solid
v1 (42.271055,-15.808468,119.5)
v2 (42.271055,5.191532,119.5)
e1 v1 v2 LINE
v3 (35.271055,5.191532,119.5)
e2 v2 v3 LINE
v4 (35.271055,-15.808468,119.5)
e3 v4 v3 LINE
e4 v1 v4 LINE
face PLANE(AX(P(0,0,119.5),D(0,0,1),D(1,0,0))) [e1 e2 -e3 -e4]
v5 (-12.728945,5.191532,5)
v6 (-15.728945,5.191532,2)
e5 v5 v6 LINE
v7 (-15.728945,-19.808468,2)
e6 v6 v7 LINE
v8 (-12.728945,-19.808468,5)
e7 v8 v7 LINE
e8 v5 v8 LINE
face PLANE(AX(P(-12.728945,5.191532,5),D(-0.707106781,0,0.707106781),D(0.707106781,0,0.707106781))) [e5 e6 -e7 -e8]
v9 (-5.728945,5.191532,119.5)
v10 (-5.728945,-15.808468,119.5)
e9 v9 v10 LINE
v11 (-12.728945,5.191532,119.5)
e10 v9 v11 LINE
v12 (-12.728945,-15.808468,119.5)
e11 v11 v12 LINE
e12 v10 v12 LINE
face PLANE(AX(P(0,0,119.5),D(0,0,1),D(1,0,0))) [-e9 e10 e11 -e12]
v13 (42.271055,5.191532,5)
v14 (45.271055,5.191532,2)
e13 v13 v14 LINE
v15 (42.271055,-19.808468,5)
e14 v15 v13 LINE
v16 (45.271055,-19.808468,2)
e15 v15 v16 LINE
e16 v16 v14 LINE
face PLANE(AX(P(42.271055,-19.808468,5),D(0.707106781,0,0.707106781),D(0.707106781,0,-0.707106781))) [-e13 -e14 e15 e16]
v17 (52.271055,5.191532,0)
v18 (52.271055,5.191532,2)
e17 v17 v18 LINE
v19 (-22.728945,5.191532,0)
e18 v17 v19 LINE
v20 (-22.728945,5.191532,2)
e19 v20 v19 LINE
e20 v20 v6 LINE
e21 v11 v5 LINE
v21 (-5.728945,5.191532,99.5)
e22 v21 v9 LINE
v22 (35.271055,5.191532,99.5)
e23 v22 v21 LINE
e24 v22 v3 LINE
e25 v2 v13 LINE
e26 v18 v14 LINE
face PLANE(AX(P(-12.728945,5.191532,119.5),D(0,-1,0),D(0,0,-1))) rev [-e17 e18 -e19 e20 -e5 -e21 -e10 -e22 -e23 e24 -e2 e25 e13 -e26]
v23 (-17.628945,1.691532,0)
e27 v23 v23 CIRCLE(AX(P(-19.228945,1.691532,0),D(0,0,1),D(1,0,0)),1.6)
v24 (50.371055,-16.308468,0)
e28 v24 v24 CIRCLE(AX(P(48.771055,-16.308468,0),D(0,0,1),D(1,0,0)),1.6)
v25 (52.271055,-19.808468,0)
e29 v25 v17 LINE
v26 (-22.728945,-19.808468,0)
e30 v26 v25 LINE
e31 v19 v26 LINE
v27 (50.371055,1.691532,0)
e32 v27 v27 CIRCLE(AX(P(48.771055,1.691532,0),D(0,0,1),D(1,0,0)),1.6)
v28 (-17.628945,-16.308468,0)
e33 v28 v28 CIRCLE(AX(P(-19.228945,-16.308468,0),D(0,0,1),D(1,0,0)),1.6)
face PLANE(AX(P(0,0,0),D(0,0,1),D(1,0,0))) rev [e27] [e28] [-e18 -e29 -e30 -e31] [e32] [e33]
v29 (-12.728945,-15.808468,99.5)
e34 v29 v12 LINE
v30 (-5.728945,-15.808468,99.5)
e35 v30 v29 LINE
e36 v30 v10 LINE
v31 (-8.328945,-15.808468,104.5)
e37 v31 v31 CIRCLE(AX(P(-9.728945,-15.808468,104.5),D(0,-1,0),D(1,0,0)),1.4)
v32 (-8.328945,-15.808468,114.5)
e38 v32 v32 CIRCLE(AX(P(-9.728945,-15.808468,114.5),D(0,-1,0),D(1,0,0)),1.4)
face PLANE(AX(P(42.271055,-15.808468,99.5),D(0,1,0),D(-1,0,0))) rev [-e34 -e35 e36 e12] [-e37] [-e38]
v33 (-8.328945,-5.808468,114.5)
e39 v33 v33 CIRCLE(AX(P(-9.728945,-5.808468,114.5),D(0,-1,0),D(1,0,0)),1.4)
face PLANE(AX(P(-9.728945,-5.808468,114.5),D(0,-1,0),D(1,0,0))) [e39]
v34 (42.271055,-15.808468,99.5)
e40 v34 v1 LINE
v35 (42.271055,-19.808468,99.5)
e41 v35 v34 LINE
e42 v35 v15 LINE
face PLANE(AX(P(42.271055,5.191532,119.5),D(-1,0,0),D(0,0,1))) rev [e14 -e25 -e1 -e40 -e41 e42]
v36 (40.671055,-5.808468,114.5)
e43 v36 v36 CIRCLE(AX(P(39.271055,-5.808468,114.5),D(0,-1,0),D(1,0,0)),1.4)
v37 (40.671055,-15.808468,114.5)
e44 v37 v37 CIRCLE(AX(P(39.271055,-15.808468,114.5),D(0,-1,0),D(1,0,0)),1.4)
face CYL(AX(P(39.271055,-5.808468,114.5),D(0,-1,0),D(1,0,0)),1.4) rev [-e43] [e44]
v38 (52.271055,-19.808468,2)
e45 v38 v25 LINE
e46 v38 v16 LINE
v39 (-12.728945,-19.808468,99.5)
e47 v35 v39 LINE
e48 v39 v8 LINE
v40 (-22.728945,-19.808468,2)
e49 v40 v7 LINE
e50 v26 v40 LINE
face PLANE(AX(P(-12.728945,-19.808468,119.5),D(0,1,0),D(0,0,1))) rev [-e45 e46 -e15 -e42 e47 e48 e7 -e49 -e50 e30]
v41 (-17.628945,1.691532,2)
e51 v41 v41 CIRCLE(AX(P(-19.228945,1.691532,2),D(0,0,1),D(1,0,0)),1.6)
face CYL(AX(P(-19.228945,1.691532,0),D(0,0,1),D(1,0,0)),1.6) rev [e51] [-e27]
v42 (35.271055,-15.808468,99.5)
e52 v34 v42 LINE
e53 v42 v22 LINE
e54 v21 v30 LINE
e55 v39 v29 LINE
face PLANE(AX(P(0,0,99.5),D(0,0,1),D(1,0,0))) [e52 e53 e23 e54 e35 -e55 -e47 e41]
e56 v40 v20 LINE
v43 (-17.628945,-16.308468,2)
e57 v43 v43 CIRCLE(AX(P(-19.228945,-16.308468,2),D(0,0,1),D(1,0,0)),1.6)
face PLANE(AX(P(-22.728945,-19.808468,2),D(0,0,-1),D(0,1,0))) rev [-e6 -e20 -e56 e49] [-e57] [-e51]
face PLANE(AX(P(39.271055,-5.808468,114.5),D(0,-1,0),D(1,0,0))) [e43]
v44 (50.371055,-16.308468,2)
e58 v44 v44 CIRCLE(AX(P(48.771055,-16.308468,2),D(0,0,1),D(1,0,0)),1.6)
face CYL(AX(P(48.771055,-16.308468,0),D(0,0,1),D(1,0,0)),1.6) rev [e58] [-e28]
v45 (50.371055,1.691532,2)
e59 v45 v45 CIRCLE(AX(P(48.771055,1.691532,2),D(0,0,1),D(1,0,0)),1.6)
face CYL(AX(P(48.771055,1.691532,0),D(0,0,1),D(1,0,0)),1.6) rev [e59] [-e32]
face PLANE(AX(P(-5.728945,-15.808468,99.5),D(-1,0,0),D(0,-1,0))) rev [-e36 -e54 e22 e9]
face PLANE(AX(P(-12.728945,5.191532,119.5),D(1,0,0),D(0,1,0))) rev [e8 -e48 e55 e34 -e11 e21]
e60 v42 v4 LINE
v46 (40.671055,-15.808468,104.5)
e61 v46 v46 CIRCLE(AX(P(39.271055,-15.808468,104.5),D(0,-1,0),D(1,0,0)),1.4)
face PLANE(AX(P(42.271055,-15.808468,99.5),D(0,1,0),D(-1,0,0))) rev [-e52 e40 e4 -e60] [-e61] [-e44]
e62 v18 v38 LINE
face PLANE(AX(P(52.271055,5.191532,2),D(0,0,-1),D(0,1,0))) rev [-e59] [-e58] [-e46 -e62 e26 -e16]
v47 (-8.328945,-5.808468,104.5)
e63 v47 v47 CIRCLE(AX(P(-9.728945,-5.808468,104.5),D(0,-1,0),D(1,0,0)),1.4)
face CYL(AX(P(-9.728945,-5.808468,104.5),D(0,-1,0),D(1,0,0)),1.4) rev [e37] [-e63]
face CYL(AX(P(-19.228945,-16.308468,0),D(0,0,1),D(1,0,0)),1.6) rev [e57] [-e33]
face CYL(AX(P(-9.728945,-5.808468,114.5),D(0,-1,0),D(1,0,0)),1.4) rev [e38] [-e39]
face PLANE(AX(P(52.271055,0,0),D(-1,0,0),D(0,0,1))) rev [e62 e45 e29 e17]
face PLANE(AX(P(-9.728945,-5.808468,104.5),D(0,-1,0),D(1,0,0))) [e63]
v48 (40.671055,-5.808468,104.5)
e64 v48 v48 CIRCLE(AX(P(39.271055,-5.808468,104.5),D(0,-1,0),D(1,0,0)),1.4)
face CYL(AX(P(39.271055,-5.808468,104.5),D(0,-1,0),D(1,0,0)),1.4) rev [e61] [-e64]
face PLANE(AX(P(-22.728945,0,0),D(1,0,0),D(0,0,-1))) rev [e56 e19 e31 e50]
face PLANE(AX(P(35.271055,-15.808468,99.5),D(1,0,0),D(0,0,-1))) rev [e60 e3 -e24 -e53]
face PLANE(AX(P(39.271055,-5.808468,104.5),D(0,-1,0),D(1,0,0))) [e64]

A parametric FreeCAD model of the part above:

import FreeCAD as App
import Part
import Sketcher


def add_polygon(sketch, points):
    """Adds a closed chain of lines whose ends are joined by coincident constraints."""
    first, n = sketch.GeometryCount, len(points)
    for a, b in zip(points, points[1:] + points[:1]):
        sketch.addGeometry(Part.LineSegment(App.Vector(*a, 0), App.Vector(*b, 0)), False)
    for i in range(n):
        sketch.addConstraint(Sketcher.Constraint("Coincident", first + i, 2, first + (i + 1) % n, 1))

doc = App.newDocument("Part")
params = doc.addObject("Spreadsheet::Sheet", "Params")
for row, (alias, value) in enumerate([
    ("sketch1_width", "55 mm"),
    ("sketch1_height", "25 mm"),
    ("pad1_length", "119.5 mm"),
    ("sketch2_width", "25 mm"),
    ("sketch2_height", "2 mm"),
    ("pad2_length", "10 mm"),
    ("sketch3_width", "3 mm"),
    ("pad3_length", "25 mm"),
    ("sketch4_diameter", "3.2 mm"),
    ("sketch5_width", "25 mm"),
    ("sketch5_height", "2 mm"),
    ("pad4_length", "10 mm"),
    ("sketch6_width", "3 mm"),
    ("pad5_length", "25 mm"),
    ("sketch7_diameter", "3.2 mm"),
    ("sketch8_width", "55 mm"),
    ("sketch8_height", "4 mm"),
    ("pocket3_length", "20 mm"),
    ("sketch9_width", "41 mm"),
    ("sketch9_height", "21 mm"),
    ("pocket4_length", "20 mm"),
    ("sketch10_diameter", "2.8 mm"),
    ("pocket5_length", "10 mm"),
    ("sketch11_diameter", "2.8 mm"),
    ("pocket6_length", "10 mm"),
], start=1):
    params.set(f"A{row}", alias)
    params.set(f"B{row}", "=" + value)
    params.setAlias(f"B{row}", alias)

body = doc.addObject("PartDesign::Body", "Body")

sketch1 = body.newObject("Sketcher::SketchObject", "Sketch")
sketch1.AttachmentSupport = (doc.getObject("XY_Plane"), [""])
sketch1.MapMode = "FlatFace"
add_polygon(sketch1, [(-13, 5), (-13, -20), (42, -20), (42, 5)])
sketch1.addConstraint([
    Sketcher.Constraint("Vertical", 0),
    Sketcher.Constraint("Horizontal", 1),
    Sketcher.Constraint("Vertical", 2),
    Sketcher.Constraint("Horizontal", 3),
    Sketcher.Constraint("DistanceX", 1, 1, 1, 2, 55.0),
    Sketcher.Constraint("DistanceY", 0, 2, 0, 1, 25.0),
    Sketcher.Constraint("DistanceX", 0, 2, -1, 1, 12.728945),
    Sketcher.Constraint("DistanceY", 0, 2, -1, 1, 19.808468),
])
sketch1.setExpression("Constraints[8]", "Params.sketch1_width")
sketch1.setExpression("Constraints[9]", "Params.sketch1_height")
pad1 = body.newObject("PartDesign::Pad", "Pad")
pad1.Profile = sketch1
pad1.setExpression("Length", "Params.pad1_length")

sketch2 = body.newObject("Sketcher::SketchObject", "Sketch001")
sketch2.AttachmentSupport = (doc.getObject("YZ_Plane"), [""])
sketch2.MapMode = "FlatFace"
sketch2.AttachmentOffset = App.Placement(App.Vector(0, 0, 42.271055), App.Rotation())
add_polygon(sketch2, [(5.2, 2), (-19.8, 2), (-19.8, 0), (5.2, 0)])
sketch2.addConstraint([
    Sketcher.Constraint("Horizontal", 0),
    Sketcher.Constraint("Vertical", 1),
    Sketcher.Constraint("Horizontal", 2),
    Sketcher.Constraint("Vertical", 3),
    Sketcher.Constraint("PointOnObject", 1, 2, -1),
    Sketcher.Constraint("DistanceX", 0, 2, 0, 1, 25.0),
    Sketcher.Constraint("DistanceY", 1, 2, 1, 1, 2.0),
    Sketcher.Constraint("DistanceX", 0, 2, -1, 1, 19.808468),
])
sketch2.setExpression("Constraints[9]", "Params.sketch2_width")
sketch2.setExpression("Constraints[10]", "Params.sketch2_height")
pad2 = body.newObject("PartDesign::Pad", "Pad001")
pad2.Profile = sketch2
pad2.setExpression("Length", "Params.pad2_length")

sketch3 = body.newObject("Sketcher::SketchObject", "Sketch002")
sketch3.AttachmentSupport = (doc.getObject("XZ_Plane"), [""])
sketch3.MapMode = "FlatFace"
sketch3.AttachmentOffset = App.Placement(App.Vector(0, 0, -5.191532), App.Rotation())
add_polygon(sketch3, [(42.3, 5), (45.3, 2), (42.3, 2)])
sketch3.addConstraint([
    Sketcher.Constraint("Horizontal", 1),
    Sketcher.Constraint("Vertical", 2),
    Sketcher.Constraint("Equal", 1, 2),
    Sketcher.Constraint("DistanceX", 1, 2, 1, 1, 3.0),
    Sketcher.Constraint("DistanceY", -1, 1, 0, 2, 2.0),
    Sketcher.Constraint("DistanceX", -1, 1, 0, 2, 45.271055),
])
sketch3.setExpression("Constraints[6]", "Params.sketch3_width")
pad3 = body.newObject("PartDesign::Pad", "Pad002")
pad3.Profile = sketch3
pad3.setExpression("Length", "Params.pad3_length")

sketch4 = body.newObject("Sketcher::SketchObject", "Sketch003")
sketch4.AttachmentSupport = (doc.getObject("XY_Plane"), [""])
sketch4.MapMode = "FlatFace"
sketch4.AttachmentOffset = App.Placement(App.Vector(0, 0, 2), App.Rotation())
sketch4.addGeometry([
    Part.Circle(App.Vector(48.8, 1.7, 0), App.Vector(0, 0, 1), 1.6),
    Part.Circle(App.Vector(48.8, -16.3, 0), App.Vector(0, 0, 1), 1.6),
], False)
sketch4.addConstraint([
    Sketcher.Constraint("Equal", 0, 1),
    Sketcher.Constraint("Vertical", 0, 3, 1, 3),
    Sketcher.Constraint("Diameter", 0, 3.2),
    Sketcher.Constraint("DistanceY", 1, 3, 0, 3, 18.0),
    Sketcher.Constraint("DistanceX", -1, 1, 0, 3, 48.771055),
    Sketcher.Constraint("DistanceY", -1, 1, 0, 3, 1.691532),
])
sketch4.setExpression("Constraints[2]", "Params.sketch4_diameter")
pocket1 = body.newObject("PartDesign::Pocket", "Pocket")
pocket1.Profile = sketch4
pocket1.Type = "ThroughAll"

sketch5 = body.newObject("Sketcher::SketchObject", "Sketch004")
sketch5.AttachmentSupport = (doc.getObject("YZ_Plane"), [""])
sketch5.MapMode = "FlatFace"
sketch5.AttachmentOffset = App.Placement(App.Vector(0, 0, -12.728945), App.Rotation())
add_polygon(sketch5, [(5.2, 0), (-19.8, 0), (-19.8, 2), (5.2, 2)])
sketch5.addConstraint([
    Sketcher.Constraint("Horizontal", 0),
    Sketcher.Constraint("Vertical", 1),
    Sketcher.Constraint("Horizontal", 2),
    Sketcher.Constraint("Vertical", 3),
    Sketcher.Constraint("PointOnObject", 0, 2, -1),
    Sketcher.Constraint("DistanceX", 0, 2, 0, 1, 25.0),
    Sketcher.Constraint("DistanceY", 1, 1, 1, 2, 2.0),
    Sketcher.Constraint("DistanceX", 0, 2, -1, 1, 19.808468),
])
sketch5.setExpression("Constraints[9]", "Params.sketch5_width")
sketch5.setExpression("Constraints[10]", "Params.sketch5_height")
pad4 = body.newObject("PartDesign::Pad", "Pad003")
pad4.Profile = sketch5
pad4.setExpression("Length", "Params.pad4_length")
pad4.Reversed = True

sketch6 = body.newObject("Sketcher::SketchObject", "Sketch005")
sketch6.AttachmentSupport = (doc.getObject("XZ_Plane"), [""])
sketch6.MapMode = "FlatFace"
sketch6.AttachmentOffset = App.Placement(App.Vector(0, 0, 19.808468), App.Rotation())
add_polygon(sketch6, [(-12.7, 5), (-15.7, 2), (-12.7, 2)])
sketch6.addConstraint([
    Sketcher.Constraint("Horizontal", 1),
    Sketcher.Constraint("Vertical", 2),
    Sketcher.Constraint("Equal", 1, 2),
    Sketcher.Constraint("DistanceX", 1, 1, 1, 2, 3.0),
    Sketcher.Constraint("DistanceY", -1, 1, 0, 2, 2.0),
    Sketcher.Constraint("DistanceX", 0, 2, -1, 1, 15.728945),
])
sketch6.setExpression("Constraints[6]", "Params.sketch6_width")
pad5 = body.newObject("PartDesign::Pad", "Pad004")
pad5.Profile = sketch6
pad5.setExpression("Length", "Params.pad5_length")
pad5.Reversed = True

sketch7 = body.newObject("Sketcher::SketchObject", "Sketch006")
sketch7.AttachmentSupport = (doc.getObject("XY_Plane"), [""])
sketch7.MapMode = "FlatFace"
sketch7.AttachmentOffset = App.Placement(App.Vector(0, 0, 2), App.Rotation())
sketch7.addGeometry([
    Part.Circle(App.Vector(-19.2, -16.3, 0), App.Vector(0, 0, 1), 1.6),
    Part.Circle(App.Vector(-19.2, 1.7, 0), App.Vector(0, 0, 1), 1.6),
], False)
sketch7.addConstraint([
    Sketcher.Constraint("Equal", 0, 1),
    Sketcher.Constraint("Vertical", 0, 3, 1, 3),
    Sketcher.Constraint("Diameter", 0, 3.2),
    Sketcher.Constraint("DistanceY", 0, 3, 1, 3, 18.0),
    Sketcher.Constraint("DistanceX", 0, 3, -1, 1, 19.228945),
    Sketcher.Constraint("DistanceY", 0, 3, -1, 1, 16.308468),
])
sketch7.setExpression("Constraints[2]", "Params.sketch7_diameter")
pocket2 = body.newObject("PartDesign::Pocket", "Pocket001")
pocket2.Profile = sketch7
pocket2.Type = "ThroughAll"

sketch8 = body.newObject("Sketcher::SketchObject", "Sketch007")
sketch8.AttachmentSupport = (doc.getObject("XY_Plane"), [""])
sketch8.MapMode = "FlatFace"
sketch8.AttachmentOffset = App.Placement(App.Vector(0, 0, 119.5), App.Rotation())
add_polygon(sketch8, [(-12.7, -15.8), (-12.7, -19.8), (42.3, -19.8), (42.3, -15.8)])
sketch8.addConstraint([
    Sketcher.Constraint("Vertical", 0),
    Sketcher.Constraint("Horizontal", 1),
    Sketcher.Constraint("Vertical", 2),
    Sketcher.Constraint("Horizontal", 3),
    Sketcher.Constraint("DistanceX", 1, 1, 1, 2, 55.0),
    Sketcher.Constraint("DistanceY", 0, 2, 0, 1, 4.0),
    Sketcher.Constraint("DistanceX", 0, 2, -1, 1, 12.728945),
    Sketcher.Constraint("DistanceY", 0, 2, -1, 1, 19.808468),
])
sketch8.setExpression("Constraints[8]", "Params.sketch8_width")
sketch8.setExpression("Constraints[9]", "Params.sketch8_height")
pocket3 = body.newObject("PartDesign::Pocket", "Pocket002")
pocket3.Profile = sketch8
pocket3.setExpression("Length", "Params.pocket3_length")

sketch9 = body.newObject("Sketcher::SketchObject", "Sketch008")
sketch9.AttachmentSupport = (doc.getObject("XY_Plane"), [""])
sketch9.MapMode = "FlatFace"
sketch9.AttachmentOffset = App.Placement(App.Vector(0, 0, 119.5), App.Rotation())
add_polygon(sketch9, [(-6, 5), (-6, -16), (35, -16), (35, 5)])
sketch9.addConstraint([
    Sketcher.Constraint("Vertical", 0),
    Sketcher.Constraint("Horizontal", 1),
    Sketcher.Constraint("Vertical", 2),
    Sketcher.Constraint("Horizontal", 3),
    Sketcher.Constraint("DistanceX", 1, 1, 1, 2, 41.0),
    Sketcher.Constraint("DistanceY", 0, 2, 0, 1, 21.0),
    Sketcher.Constraint("DistanceX", 0, 2, -1, 1, 5.728945),
    Sketcher.Constraint("DistanceY", 0, 2, -1, 1, 15.808468),
])
sketch9.setExpression("Constraints[8]", "Params.sketch9_width")
sketch9.setExpression("Constraints[9]", "Params.sketch9_height")
pocket4 = body.newObject("PartDesign::Pocket", "Pocket003")
pocket4.Profile = sketch9
pocket4.setExpression("Length", "Params.pocket4_length")

sketch10 = body.newObject("Sketcher::SketchObject", "Sketch009")
sketch10.AttachmentSupport = (doc.getObject("XZ_Plane"), [""])
sketch10.MapMode = "FlatFace"
sketch10.AttachmentOffset = App.Placement(App.Vector(0, 0, 15.808468), App.Rotation())
sketch10.addGeometry([
    Part.Circle(App.Vector(39.3, 104.5, 0), App.Vector(0, 0, 1), 1.4),
    Part.Circle(App.Vector(39.3, 114.5, 0), App.Vector(0, 0, 1), 1.4),
], False)
sketch10.addConstraint([
    Sketcher.Constraint("Equal", 0, 1),
    Sketcher.Constraint("Vertical", 0, 3, 1, 3),
    Sketcher.Constraint("Diameter", 0, 2.8),
    Sketcher.Constraint("DistanceY", 0, 3, 1, 3, 10.0),
    Sketcher.Constraint("DistanceY", -1, 1, 0, 3, 104.5),
    Sketcher.Constraint("DistanceX", -1, 1, 0, 3, 39.271055),
])
sketch10.setExpression("Constraints[2]", "Params.sketch10_diameter")
pocket5 = body.newObject("PartDesign::Pocket", "Pocket004")
pocket5.Profile = sketch10
pocket5.setExpression("Length", "Params.pocket5_length")

sketch11 = body.newObject("Sketcher::SketchObject", "Sketch010")
sketch11.AttachmentSupport = (doc.getObject("XZ_Plane"), [""])
sketch11.MapMode = "FlatFace"
sketch11.AttachmentOffset = App.Placement(App.Vector(0, 0, 15.808468), App.Rotation())
sketch11.addGeometry([
    Part.Circle(App.Vector(-9.7, 104.5, 0), App.Vector(0, 0, 1), 1.4),
    Part.Circle(App.Vector(-9.7, 114.5, 0), App.Vector(0, 0, 1), 1.4),
], False)
sketch11.addConstraint([
    Sketcher.Constraint("Equal", 0, 1),
    Sketcher.Constraint("Vertical", 0, 3, 1, 3),
    Sketcher.Constraint("Diameter", 0, 2.8),
    Sketcher.Constraint("DistanceY", 0, 3, 1, 3, 10.0),
    Sketcher.Constraint("DistanceY", -1, 1, 0, 3, 104.5),
    Sketcher.Constraint("DistanceX", 0, 3, -1, 1, 9.728945),
])
sketch11.setExpression("Constraints[2]", "Params.sketch11_diameter")
pocket6 = body.newObject("PartDesign::Pocket", "Pocket005")
pocket6.Profile = sketch11
pocket6.setExpression("Length", "Params.pocket6_length")

doc.recompute()
